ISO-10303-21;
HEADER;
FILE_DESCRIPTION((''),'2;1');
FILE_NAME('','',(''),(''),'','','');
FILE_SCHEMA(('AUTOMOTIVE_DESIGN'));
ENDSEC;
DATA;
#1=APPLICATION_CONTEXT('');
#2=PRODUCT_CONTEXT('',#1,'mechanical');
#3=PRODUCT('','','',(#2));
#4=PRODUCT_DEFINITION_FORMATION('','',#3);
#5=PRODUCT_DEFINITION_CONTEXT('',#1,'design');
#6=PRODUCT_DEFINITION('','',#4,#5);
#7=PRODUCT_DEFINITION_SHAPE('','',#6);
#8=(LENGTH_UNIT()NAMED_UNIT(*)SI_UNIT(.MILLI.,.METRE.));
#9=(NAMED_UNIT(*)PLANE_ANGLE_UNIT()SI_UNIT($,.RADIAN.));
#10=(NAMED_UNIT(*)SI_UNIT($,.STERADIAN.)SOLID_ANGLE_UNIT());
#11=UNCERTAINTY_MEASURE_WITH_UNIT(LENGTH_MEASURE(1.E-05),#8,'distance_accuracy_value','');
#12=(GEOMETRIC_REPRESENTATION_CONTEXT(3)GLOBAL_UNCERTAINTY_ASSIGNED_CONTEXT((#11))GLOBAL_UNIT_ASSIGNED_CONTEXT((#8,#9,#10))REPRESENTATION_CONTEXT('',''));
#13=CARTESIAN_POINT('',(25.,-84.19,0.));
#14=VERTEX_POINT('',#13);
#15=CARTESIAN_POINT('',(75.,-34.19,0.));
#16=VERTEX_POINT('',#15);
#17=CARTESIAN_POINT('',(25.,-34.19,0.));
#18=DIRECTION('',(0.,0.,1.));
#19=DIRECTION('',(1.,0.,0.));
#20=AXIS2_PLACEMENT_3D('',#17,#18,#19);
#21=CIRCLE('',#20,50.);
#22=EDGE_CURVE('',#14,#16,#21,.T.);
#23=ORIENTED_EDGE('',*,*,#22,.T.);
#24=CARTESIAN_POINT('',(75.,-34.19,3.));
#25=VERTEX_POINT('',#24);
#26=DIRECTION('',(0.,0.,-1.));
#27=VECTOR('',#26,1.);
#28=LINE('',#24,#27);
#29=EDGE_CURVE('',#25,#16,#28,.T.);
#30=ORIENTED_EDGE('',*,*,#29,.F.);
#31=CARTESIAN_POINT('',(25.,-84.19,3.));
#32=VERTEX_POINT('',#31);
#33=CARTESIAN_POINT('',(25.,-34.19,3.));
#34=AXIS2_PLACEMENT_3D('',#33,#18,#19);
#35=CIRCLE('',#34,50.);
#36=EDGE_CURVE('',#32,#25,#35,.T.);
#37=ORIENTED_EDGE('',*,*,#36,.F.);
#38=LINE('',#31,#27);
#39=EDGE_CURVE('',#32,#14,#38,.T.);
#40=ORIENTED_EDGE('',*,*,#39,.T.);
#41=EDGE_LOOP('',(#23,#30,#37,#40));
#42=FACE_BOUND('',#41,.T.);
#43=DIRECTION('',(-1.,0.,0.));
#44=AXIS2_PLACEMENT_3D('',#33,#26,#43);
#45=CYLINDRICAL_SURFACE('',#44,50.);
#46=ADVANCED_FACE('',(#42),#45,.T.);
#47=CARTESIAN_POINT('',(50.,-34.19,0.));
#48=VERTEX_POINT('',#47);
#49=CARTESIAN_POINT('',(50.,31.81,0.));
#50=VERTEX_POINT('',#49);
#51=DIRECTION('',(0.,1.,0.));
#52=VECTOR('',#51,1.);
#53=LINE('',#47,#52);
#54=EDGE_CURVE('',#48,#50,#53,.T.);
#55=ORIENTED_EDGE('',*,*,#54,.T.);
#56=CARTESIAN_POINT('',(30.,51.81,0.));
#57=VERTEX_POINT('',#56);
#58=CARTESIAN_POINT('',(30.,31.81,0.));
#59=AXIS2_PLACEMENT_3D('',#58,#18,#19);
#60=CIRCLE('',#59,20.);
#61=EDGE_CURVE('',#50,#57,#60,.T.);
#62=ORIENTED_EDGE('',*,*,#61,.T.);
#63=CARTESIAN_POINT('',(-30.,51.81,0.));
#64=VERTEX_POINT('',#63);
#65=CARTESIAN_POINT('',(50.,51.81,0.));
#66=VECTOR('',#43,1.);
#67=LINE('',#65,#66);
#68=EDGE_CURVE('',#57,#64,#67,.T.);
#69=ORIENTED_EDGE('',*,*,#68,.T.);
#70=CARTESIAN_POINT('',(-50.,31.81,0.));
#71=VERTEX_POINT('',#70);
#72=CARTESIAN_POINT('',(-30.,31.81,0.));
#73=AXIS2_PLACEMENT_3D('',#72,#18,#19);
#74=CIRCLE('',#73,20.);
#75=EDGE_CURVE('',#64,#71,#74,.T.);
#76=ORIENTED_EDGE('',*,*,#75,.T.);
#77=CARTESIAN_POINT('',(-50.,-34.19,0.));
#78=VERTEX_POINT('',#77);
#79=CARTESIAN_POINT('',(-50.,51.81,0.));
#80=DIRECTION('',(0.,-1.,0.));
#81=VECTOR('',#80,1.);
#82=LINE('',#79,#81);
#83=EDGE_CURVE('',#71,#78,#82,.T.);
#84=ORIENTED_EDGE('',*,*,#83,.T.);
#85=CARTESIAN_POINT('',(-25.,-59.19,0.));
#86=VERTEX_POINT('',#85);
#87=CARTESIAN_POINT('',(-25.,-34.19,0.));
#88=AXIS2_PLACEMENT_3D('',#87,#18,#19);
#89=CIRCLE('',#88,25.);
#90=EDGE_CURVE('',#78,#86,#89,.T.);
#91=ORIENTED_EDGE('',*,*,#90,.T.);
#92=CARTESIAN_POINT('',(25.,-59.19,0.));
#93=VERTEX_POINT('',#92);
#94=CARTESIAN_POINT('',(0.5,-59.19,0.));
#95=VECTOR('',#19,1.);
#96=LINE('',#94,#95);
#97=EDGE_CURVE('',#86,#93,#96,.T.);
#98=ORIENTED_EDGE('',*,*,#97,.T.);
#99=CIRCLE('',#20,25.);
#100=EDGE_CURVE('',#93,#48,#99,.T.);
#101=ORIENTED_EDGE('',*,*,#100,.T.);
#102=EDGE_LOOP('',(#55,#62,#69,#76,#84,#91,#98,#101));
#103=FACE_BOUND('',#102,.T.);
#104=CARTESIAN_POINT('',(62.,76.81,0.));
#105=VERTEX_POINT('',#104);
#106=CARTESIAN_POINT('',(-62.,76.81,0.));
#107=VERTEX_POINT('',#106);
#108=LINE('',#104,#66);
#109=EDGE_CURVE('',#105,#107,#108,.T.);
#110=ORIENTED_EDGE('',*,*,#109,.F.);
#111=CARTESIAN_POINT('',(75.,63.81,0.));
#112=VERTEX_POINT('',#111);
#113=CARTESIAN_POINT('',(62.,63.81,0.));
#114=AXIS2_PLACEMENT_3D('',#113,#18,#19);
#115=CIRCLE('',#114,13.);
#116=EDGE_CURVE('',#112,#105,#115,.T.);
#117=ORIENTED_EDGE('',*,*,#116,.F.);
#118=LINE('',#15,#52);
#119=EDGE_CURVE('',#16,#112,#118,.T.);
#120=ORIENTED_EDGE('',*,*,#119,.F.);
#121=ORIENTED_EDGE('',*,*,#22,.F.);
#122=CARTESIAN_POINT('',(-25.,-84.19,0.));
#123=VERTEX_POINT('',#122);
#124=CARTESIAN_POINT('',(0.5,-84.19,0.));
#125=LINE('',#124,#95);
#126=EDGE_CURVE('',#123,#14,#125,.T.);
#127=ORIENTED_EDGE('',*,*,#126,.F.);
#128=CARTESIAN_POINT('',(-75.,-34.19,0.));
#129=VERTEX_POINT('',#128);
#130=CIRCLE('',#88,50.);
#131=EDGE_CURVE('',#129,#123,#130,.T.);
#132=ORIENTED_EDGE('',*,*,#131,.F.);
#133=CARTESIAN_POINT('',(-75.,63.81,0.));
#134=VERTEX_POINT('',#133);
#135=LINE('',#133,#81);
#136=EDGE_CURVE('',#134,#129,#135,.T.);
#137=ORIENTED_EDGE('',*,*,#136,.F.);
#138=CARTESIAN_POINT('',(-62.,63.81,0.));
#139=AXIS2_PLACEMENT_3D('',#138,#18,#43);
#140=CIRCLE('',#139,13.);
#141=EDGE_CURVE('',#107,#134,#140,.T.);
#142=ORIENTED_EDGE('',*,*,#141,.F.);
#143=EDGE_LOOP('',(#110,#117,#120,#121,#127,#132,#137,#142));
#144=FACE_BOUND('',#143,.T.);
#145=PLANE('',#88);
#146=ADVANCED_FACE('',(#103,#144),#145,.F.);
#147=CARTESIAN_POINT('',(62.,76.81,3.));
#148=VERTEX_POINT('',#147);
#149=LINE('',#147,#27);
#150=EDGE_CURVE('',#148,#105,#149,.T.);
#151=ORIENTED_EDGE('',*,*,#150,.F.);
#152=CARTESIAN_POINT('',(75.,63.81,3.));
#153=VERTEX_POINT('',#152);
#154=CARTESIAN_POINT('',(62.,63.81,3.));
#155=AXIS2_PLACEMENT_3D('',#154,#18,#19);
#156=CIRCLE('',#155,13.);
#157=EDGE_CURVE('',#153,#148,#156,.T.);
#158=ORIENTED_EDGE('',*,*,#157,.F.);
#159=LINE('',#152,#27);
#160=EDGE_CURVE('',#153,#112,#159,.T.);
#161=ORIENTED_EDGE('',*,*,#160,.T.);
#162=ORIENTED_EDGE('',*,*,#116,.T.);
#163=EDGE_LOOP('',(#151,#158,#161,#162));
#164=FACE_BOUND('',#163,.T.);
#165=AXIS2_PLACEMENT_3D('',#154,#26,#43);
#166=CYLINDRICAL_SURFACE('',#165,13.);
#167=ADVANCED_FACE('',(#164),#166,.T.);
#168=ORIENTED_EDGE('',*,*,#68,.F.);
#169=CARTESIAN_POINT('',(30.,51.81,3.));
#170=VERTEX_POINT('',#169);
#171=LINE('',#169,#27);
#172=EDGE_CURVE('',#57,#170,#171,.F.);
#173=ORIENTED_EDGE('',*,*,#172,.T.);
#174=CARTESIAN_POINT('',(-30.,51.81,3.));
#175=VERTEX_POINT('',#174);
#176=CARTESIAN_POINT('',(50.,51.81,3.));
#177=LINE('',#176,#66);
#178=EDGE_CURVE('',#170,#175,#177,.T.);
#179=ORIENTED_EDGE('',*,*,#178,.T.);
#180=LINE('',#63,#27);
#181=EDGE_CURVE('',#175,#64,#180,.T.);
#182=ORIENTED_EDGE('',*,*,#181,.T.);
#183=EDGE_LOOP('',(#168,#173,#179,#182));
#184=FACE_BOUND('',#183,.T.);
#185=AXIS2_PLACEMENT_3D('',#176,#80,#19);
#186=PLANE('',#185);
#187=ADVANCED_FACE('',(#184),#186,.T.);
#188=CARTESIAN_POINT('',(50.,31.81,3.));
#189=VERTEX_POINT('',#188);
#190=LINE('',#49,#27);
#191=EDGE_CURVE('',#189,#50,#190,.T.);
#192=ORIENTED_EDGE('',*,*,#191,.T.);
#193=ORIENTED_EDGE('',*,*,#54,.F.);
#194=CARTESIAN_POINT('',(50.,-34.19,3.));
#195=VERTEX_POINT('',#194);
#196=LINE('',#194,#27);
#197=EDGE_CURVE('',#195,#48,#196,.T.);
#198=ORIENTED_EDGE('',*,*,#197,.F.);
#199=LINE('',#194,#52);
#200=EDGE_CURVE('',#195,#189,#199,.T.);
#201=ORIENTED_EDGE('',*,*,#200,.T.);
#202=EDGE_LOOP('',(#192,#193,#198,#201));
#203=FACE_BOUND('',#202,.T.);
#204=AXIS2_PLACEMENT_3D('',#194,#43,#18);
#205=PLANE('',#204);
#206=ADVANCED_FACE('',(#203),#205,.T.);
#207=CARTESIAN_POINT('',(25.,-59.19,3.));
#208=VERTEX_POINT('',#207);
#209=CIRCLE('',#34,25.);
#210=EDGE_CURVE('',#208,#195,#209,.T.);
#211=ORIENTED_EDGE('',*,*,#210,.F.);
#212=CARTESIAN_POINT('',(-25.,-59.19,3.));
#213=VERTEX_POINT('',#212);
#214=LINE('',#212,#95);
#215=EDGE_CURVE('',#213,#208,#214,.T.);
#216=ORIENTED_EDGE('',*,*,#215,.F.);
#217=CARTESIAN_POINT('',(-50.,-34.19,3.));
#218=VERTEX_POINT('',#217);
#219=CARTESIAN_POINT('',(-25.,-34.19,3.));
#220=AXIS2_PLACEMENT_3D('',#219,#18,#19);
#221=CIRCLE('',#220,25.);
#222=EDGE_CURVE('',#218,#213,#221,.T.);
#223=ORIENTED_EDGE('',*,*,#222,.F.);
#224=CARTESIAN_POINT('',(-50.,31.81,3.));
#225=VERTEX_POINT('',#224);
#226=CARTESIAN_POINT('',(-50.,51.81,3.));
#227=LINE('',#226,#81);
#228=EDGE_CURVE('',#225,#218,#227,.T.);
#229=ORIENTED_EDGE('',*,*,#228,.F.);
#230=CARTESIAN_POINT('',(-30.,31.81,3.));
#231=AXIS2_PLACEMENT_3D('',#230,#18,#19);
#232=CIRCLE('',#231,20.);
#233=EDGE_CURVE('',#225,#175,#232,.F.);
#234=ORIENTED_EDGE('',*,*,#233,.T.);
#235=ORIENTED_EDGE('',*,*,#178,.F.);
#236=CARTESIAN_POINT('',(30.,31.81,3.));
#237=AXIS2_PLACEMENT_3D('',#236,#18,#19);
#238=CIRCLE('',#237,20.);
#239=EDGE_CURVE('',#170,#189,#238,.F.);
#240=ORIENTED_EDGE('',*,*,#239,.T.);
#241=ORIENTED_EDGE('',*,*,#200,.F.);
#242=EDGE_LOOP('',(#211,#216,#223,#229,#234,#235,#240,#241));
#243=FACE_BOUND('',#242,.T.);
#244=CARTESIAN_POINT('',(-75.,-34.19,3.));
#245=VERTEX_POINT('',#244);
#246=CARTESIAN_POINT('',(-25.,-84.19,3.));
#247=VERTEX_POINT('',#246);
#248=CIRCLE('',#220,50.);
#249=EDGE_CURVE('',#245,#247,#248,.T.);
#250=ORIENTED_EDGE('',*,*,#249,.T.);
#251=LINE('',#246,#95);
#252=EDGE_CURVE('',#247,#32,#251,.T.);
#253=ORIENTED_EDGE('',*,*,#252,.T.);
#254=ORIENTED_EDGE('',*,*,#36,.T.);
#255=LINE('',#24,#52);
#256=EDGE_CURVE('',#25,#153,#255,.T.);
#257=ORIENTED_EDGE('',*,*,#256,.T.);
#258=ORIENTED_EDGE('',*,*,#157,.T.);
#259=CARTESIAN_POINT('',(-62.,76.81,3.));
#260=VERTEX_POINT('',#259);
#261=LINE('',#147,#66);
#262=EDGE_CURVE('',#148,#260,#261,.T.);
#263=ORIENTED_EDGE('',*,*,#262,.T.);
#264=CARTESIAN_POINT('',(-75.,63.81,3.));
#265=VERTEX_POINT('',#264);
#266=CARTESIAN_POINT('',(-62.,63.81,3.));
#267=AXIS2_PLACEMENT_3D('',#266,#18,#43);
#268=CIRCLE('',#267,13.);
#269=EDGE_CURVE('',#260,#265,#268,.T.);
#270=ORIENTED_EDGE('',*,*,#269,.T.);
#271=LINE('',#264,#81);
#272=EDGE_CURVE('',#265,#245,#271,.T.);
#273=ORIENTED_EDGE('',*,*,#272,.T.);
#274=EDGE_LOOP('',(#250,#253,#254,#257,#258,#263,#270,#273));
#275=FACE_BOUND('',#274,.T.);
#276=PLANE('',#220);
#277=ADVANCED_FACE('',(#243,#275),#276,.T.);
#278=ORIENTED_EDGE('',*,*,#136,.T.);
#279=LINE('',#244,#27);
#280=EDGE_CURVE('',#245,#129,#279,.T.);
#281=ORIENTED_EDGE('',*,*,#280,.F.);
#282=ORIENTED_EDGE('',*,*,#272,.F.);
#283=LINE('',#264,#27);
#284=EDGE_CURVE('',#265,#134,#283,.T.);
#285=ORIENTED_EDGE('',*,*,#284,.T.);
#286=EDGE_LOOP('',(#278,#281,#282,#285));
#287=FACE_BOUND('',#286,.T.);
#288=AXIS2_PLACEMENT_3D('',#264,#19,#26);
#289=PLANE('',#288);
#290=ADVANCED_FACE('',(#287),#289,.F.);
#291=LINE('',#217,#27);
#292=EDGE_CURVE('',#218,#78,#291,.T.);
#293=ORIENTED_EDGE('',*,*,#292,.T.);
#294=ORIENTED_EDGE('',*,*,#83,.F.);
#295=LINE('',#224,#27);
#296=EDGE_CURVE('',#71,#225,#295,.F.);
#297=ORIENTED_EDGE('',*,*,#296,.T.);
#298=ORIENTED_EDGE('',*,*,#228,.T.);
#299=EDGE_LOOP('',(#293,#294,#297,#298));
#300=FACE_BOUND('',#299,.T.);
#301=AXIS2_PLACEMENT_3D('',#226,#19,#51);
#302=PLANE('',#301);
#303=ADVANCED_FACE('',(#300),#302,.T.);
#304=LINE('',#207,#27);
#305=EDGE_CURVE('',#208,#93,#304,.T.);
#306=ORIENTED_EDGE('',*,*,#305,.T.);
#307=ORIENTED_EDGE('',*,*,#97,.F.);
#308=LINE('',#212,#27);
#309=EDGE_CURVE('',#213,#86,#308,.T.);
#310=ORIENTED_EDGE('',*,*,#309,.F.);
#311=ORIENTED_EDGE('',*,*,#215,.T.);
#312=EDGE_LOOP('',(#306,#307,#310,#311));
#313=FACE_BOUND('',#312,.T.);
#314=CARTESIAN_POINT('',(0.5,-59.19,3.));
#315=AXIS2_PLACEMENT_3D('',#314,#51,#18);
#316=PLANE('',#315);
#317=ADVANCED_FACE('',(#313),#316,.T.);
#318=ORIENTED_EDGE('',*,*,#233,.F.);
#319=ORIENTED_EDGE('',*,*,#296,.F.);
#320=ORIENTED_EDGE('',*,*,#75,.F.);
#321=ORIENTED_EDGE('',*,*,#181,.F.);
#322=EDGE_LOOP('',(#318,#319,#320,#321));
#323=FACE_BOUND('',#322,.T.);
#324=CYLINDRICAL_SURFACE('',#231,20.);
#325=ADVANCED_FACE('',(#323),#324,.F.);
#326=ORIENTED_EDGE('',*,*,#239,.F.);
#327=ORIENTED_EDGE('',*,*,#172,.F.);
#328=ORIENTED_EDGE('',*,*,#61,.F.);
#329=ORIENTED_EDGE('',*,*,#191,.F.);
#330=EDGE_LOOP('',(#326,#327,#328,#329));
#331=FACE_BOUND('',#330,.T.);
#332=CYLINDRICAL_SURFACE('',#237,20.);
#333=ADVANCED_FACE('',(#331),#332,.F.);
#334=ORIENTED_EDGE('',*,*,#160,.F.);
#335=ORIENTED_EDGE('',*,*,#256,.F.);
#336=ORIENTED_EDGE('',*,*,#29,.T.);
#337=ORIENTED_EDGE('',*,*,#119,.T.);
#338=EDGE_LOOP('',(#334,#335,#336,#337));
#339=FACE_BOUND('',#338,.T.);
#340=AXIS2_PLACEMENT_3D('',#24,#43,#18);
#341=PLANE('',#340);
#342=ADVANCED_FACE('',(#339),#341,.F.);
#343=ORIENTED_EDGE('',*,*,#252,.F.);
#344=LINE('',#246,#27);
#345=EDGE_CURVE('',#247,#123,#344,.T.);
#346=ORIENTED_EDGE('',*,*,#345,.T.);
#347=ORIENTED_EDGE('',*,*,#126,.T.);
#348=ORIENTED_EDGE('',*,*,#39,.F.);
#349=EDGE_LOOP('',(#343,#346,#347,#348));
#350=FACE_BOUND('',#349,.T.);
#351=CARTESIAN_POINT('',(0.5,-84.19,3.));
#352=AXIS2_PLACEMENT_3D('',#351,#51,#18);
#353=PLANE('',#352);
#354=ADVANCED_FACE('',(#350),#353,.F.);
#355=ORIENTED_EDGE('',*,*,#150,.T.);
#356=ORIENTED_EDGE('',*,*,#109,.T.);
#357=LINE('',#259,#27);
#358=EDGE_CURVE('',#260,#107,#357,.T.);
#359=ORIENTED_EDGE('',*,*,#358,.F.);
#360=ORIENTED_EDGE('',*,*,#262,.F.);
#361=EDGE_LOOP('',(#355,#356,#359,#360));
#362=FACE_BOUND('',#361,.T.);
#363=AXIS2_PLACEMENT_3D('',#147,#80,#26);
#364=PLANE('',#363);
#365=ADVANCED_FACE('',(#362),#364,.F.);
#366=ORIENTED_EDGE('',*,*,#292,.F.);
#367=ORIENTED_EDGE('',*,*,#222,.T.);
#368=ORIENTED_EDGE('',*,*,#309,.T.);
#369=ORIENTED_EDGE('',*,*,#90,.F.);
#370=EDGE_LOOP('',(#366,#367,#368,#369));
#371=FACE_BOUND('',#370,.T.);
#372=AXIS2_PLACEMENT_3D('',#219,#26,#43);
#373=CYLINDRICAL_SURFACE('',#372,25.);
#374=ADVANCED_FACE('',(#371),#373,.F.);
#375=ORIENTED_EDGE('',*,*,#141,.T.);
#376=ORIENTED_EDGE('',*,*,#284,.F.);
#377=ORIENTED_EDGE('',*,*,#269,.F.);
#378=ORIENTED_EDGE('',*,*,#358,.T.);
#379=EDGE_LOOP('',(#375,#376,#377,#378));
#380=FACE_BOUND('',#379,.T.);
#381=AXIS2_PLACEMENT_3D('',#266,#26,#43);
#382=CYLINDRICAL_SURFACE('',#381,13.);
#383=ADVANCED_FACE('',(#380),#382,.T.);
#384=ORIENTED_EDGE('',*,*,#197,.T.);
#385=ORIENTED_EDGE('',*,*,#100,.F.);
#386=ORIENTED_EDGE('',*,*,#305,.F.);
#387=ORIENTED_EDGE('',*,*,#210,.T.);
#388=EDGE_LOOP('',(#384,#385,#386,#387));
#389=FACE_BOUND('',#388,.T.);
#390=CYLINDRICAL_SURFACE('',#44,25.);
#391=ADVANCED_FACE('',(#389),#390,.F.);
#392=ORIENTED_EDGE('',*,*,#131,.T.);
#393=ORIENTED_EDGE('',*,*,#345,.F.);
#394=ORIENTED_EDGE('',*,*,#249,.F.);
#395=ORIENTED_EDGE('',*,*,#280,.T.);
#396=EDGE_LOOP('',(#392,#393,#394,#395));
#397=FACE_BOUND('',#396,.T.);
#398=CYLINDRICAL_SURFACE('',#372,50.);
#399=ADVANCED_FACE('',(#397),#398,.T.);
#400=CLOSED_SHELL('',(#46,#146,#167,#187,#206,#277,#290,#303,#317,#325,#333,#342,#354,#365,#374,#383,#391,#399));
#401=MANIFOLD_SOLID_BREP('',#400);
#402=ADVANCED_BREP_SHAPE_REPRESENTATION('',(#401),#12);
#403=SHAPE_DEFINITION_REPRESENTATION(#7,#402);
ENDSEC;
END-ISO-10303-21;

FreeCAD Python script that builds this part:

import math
import FreeCAD as App
import Part
import Sketcher
from FreeCAD import Vector


def edges_at(feature, points):
    """Names of the edges that pass closest to the given points."""
    edges = feature.Shape.Edges
    near = lambda p: min(range(len(edges)), key=lambda i: edges[i].distToShape(Part.Vertex(*p))[0])
    return sorted({f"Edge{near(p) + 1}" for p in points})

doc = App.newDocument("Part")
body = doc.addObject("PartDesign::Body", "Body")

# Sketch on XY plane
sketch1 = body.newObject("Sketcher::SketchObject", "Sketch")
sketch1.AttachmentSupport = (doc.getObject("XY_Plane"), [""])
sketch1.MapMode = "FlatFace"
sketch1.addGeometry([
    Part.ArcOfCircle(Part.Circle(Vector(25, -34.19, 0), Vector(0, 0, 1), 50), math.radians(-90), math.radians(0)),  # 0
    Part.LineSegment(Vector(75, -34.19, 0), Vector(75, 63.81, 0)),  # 1
    Part.ArcOfCircle(Part.Circle(Vector(62, 63.81, 0), Vector(0, 0, 1), 13), math.radians(0), math.radians(90)),  # 2
    Part.LineSegment(Vector(62, 76.81, 0), Vector(-62, 76.81, 0)),  # 3
    Part.ArcOfCircle(Part.Circle(Vector(-62, 63.81, 0), Vector(0, 0, 1), 13), math.radians(90), math.radians(180)),  # 4
    Part.LineSegment(Vector(-75, 63.81, 0), Vector(-75, -34.19, 0)),  # 5
    Part.ArcOfCircle(Part.Circle(Vector(-25, -34.19, 0), Vector(0, 0, 1), 50), math.radians(-180), math.radians(-90)),  # 6
    Part.LineSegment(Vector(-25, -84.19, 0), Vector(25, -84.19, 0)),  # 7
    Part.LineSegment(Vector(-50, 51.81, 0), Vector(50, 51.81, 0)),  # 8
    Part.LineSegment(Vector(50, 51.81, 0), Vector(50, -34.19, 0)),  # 9
    Part.ArcOfCircle(Part.Circle(Vector(25, -34.19, 0), Vector(0, 0, 1), 25), math.radians(-90), math.radians(0)),  # 10
    Part.LineSegment(Vector(25, -59.19, 0), Vector(-25, -59.19, 0)),  # 11
    Part.ArcOfCircle(Part.Circle(Vector(-25, -34.19, 0), Vector(0, 0, 1), 25), math.radians(180), math.radians(270)),  # 12
    Part.LineSegment(Vector(-50, -34.19, 0), Vector(-50, 51.81, 0)),  # 13
], False)
sketch1.addConstraint([
    Sketcher.Constraint("Tangent", 0, 2, 1, 1),
    Sketcher.Constraint("Tangent", 1, 2, 2, 1),
    Sketcher.Constraint("Tangent", 2, 2, 3, 1),
    Sketcher.Constraint("Tangent", 3, 2, 4, 1),
    Sketcher.Constraint("Tangent", 4, 2, 5, 1),
    Sketcher.Constraint("Tangent", 5, 2, 6, 1),
    Sketcher.Constraint("Tangent", 6, 2, 7, 1),
    Sketcher.Constraint("Tangent", 7, 2, 0, 1),
    Sketcher.Constraint("Coincident", 8, 2, 9, 1),
    Sketcher.Constraint("Tangent", 9, 2, 10, 2),
    Sketcher.Constraint("Tangent", 10, 1, 11, 1),
    Sketcher.Constraint("Tangent", 11, 2, 12, 2),
    Sketcher.Constraint("Tangent", 12, 1, 13, 1),
    Sketcher.Constraint("Coincident", 13, 2, 8, 1),
    Sketcher.Constraint("Vertical", 1),
    Sketcher.Constraint("Horizontal", 3),
    Sketcher.Constraint("Vertical", 5),
    Sketcher.Constraint("Horizontal", 7),
    Sketcher.Constraint("Horizontal", 8),
    Sketcher.Constraint("Vertical", 9),
    Sketcher.Constraint("Horizontal", 11),
    Sketcher.Constraint("Vertical", 13),
    Sketcher.Constraint("Coincident", 10, 3, 0, 3),
    Sketcher.Constraint("Coincident", 12, 3, 6, 3),
    Sketcher.Constraint("Equal", 2, 4),
    Sketcher.Constraint("Equal", 0, 6),
    Sketcher.Constraint("Radius", 0, 50.0),
    Sketcher.Constraint("Radius", 2, 13.0),
    Sketcher.Constraint("Radius", 10, 25.0),
    Sketcher.Constraint("DistanceX", 3, 2, 3, 1, 124.0),
    Sketcher.Constraint("DistanceY", 1, 1, 1, 2, 98.0),
    Sketcher.Constraint("DistanceY", 9, 2, 9, 1, 86.0),
    Sketcher.Constraint("DistanceX", -1, 1, 0, 3, 25.0),
    Sketcher.Constraint("DistanceY", 0, 3, -1, 1, 34.19),
])
pad1 = body.newObject("PartDesign::Pad", "Pad")
pad1.Profile = sketch1
pad1.Length = 3
doc.recompute()

fillet = body.newObject("PartDesign::Fillet", "Fillet")
fillet.Base = (pad1, edges_at(pad1, [(50, 51.81, 1.5), (-50, 51.81, 1.5)]))
fillet.Radius = 20

doc.recompute()
